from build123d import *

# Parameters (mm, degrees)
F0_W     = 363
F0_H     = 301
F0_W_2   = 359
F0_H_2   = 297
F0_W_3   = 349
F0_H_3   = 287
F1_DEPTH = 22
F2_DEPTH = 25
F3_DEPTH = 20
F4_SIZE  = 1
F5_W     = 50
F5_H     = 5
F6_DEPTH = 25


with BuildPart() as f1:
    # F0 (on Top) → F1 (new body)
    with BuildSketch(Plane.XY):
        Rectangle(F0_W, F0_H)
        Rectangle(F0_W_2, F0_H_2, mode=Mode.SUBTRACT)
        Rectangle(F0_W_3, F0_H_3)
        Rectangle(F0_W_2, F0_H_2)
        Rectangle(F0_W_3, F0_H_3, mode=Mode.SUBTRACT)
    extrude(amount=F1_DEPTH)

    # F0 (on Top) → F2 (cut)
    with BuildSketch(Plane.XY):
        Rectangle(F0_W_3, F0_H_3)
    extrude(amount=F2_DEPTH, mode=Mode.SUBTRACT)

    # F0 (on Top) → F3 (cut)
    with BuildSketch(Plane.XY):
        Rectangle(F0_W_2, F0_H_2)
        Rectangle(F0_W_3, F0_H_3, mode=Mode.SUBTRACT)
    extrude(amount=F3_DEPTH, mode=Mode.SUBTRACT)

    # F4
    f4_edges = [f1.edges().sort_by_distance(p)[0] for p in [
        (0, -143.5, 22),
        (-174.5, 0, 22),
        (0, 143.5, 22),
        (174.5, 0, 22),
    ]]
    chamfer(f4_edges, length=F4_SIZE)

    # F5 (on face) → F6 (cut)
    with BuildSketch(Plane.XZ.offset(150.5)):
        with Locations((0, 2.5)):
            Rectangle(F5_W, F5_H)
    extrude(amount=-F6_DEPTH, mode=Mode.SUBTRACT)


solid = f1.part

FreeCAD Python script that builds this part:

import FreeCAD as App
import Part
import Sketcher


def edges_at(feature, points):
    """Names of the edges that pass closest to the given points."""
    edges = feature.Shape.Edges
    near = lambda p: min(range(len(edges)), key=lambda i: edges[i].distToShape(Part.Vertex(*p))[0])
    return sorted({f"Edge{near(p) + 1}" for p in points})

doc = App.newDocument("Part")
body = doc.addObject("PartDesign::Body", "Body")

# Sketch on XY plane
sketch1 = body.newObject("Sketcher::SketchObject", "Sketch")
sketch1.AttachmentSupport = (doc.getObject("XY_Plane"), [""])
sketch1.MapMode = "FlatFace"
sketch1.addGeometry(Part.LineSegment(App.Vector(-181.5, 150.5, 0), App.Vector(-181.5, -150.5, 0)), False)
sketch1.addGeometry(Part.LineSegment(App.Vector(-181.5, -150.5, 0), App.Vector(181.5, -150.5, 0)), False)
sketch1.addGeometry(Part.LineSegment(App.Vector(181.5, -150.5, 0), App.Vector(181.5, 150.5, 0)), False)
sketch1.addGeometry(Part.LineSegment(App.Vector(181.5, 150.5, 0), App.Vector(-181.5, 150.5, 0)), False)
sketch1.addGeometry(Part.LineSegment(App.Vector(174.5, -143.5, 0), App.Vector(-174.5, -143.5, 0)), False)
sketch1.addGeometry(Part.LineSegment(App.Vector(-174.5, -143.5, 0), App.Vector(-174.5, 143.5, 0)), False)
sketch1.addGeometry(Part.LineSegment(App.Vector(-174.5, 143.5, 0), App.Vector(174.5, 143.5, 0)), False)
sketch1.addGeometry(Part.LineSegment(App.Vector(174.5, 143.5, 0), App.Vector(174.5, -143.5, 0)), False)
sketch1.addConstraint(Sketcher.Constraint("Coincident", 0, 2, 1, 1))
sketch1.addConstraint(Sketcher.Constraint("Coincident", 1, 2, 2, 1))
sketch1.addConstraint(Sketcher.Constraint("Coincident", 2, 2, 3, 1))
sketch1.addConstraint(Sketcher.Constraint("Coincident", 3, 2, 0, 1))
sketch1.addConstraint(Sketcher.Constraint("Coincident", 4, 2, 5, 1))
sketch1.addConstraint(Sketcher.Constraint("Coincident", 5, 2, 6, 1))
sketch1.addConstraint(Sketcher.Constraint("Coincident", 6, 2, 7, 1))
sketch1.addConstraint(Sketcher.Constraint("Coincident", 7, 2, 4, 1))
sketch1.addConstraint(Sketcher.Constraint("Vertical", 0))
sketch1.addConstraint(Sketcher.Constraint("Horizontal", 1))
sketch1.addConstraint(Sketcher.Constraint("Vertical", 2))
sketch1.addConstraint(Sketcher.Constraint("Horizontal", 3))
sketch1.addConstraint(Sketcher.Constraint("Horizontal", 4))
sketch1.addConstraint(Sketcher.Constraint("Vertical", 5))
sketch1.addConstraint(Sketcher.Constraint("Horizontal", 6))
sketch1.addConstraint(Sketcher.Constraint("Vertical", 7))
sketch1.addConstraint(Sketcher.Constraint("Symmetric", 0, 2, 2, 2, -1, 1))
sketch1.addConstraint(Sketcher.Constraint("Symmetric", 4, 2, 6, 2, -1, 1))
sketch1.addConstraint(Sketcher.Constraint("DistanceX", 1, 1, 1, 2, 363.0))
sketch1.addConstraint(Sketcher.Constraint("DistanceX", 4, 2, 4, 1, 349.0))
sketch1.addConstraint(Sketcher.Constraint("DistanceY", 0, 2, 0, 1, 301.0))
sketch1.addConstraint(Sketcher.Constraint("DistanceY", 5, 1, 5, 2, 287.0))
pad1 = body.newObject("PartDesign::Pad", "Pad")
pad1.Profile = sketch1
pad1.Length = 22

# Sketch on XY plane
sketch2 = body.newObject("Sketcher::SketchObject", "Sketch001")
sketch2.AttachmentSupport = (doc.getObject("XY_Plane"), [""])
sketch2.MapMode = "FlatFace"
sketch2.addGeometry(Part.LineSegment(App.Vector(-174.5, 143.5, 0), App.Vector(-174.5, -143.5, 0)), False)
sketch2.addGeometry(Part.LineSegment(App.Vector(-174.5, -143.5, 0), App.Vector(174.5, -143.5, 0)), False)
sketch2.addGeometry(Part.LineSegment(App.Vector(174.5, -143.5, 0), App.Vector(174.5, 143.5, 0)), False)
sketch2.addGeometry(Part.LineSegment(App.Vector(174.5, 143.5, 0), App.Vector(-174.5, 143.5, 0)), False)
sketch2.addConstraint(Sketcher.Constraint("Coincident", 0, 2, 1, 1))
sketch2.addConstraint(Sketcher.Constraint("Coincident", 1, 2, 2, 1))
sketch2.addConstraint(Sketcher.Constraint("Coincident", 2, 2, 3, 1))
sketch2.addConstraint(Sketcher.Constraint("Coincident", 3, 2, 0, 1))
sketch2.addConstraint(Sketcher.Constraint("Vertical", 0))
sketch2.addConstraint(Sketcher.Constraint("Horizontal", 1))
sketch2.addConstraint(Sketcher.Constraint("Vertical", 2))
sketch2.addConstraint(Sketcher.Constraint("Horizontal", 3))
sketch2.addConstraint(Sketcher.Constraint("Symmetric", 0, 2, 2, 2, -1, 1))
sketch2.addConstraint(Sketcher.Constraint("DistanceX", 1, 1, 1, 2, 349.0))
sketch2.addConstraint(Sketcher.Constraint("DistanceY", 0, 2, 0, 1, 287.0))
pocket1 = body.newObject("PartDesign::Pocket", "Pocket")
pocket1.Profile = sketch2
pocket1.Length = 25
pocket1.Reversed = True

# Sketch on XY plane
sketch3 = body.newObject("Sketcher::SketchObject", "Sketch002")
sketch3.AttachmentSupport = (doc.getObject("XY_Plane"), [""])
sketch3.MapMode = "FlatFace"
sketch3.addGeometry(Part.LineSegment(App.Vector(-179.5, 148.5, 0), App.Vector(-179.5, -148.5, 0)), False)
sketch3.addGeometry(Part.LineSegment(App.Vector(-179.5, -148.5, 0), App.Vector(179.5, -148.5, 0)), False)
sketch3.addGeometry(Part.LineSegment(App.Vector(179.5, -148.5, 0), App.Vector(179.5, 148.5, 0)), False)
sketch3.addGeometry(Part.LineSegment(App.Vector(179.5, 148.5, 0), App.Vector(-179.5, 148.5, 0)), False)
sketch3.addGeometry(Part.LineSegment(App.Vector(174.5, -143.5, 0), App.Vector(-174.5, -143.5, 0)), False)
sketch3.addGeometry(Part.LineSegment(App.Vector(-174.5, -143.5, 0), App.Vector(-174.5, 143.5, 0)), False)
sketch3.addGeometry(Part.LineSegment(App.Vector(-174.5, 143.5, 0), App.Vector(174.5, 143.5, 0)), False)
sketch3.addGeometry(Part.LineSegment(App.Vector(174.5, 143.5, 0), App.Vector(174.5, -143.5, 0)), False)
sketch3.addConstraint(Sketcher.Constraint("Coincident", 0, 2, 1, 1))
sketch3.addConstraint(Sketcher.Constraint("Coincident", 1, 2, 2, 1))
sketch3.addConstraint(Sketcher.Constraint("Coincident", 2, 2, 3, 1))
sketch3.addConstraint(Sketcher.Constraint("Coincident", 3, 2, 0, 1))
sketch3.addConstraint(Sketcher.Constraint("Coincident", 4, 2, 5, 1))
sketch3.addConstraint(Sketcher.Constraint("Coincident", 5, 2, 6, 1))
sketch3.addConstraint(Sketcher.Constraint("Coincident", 6, 2, 7, 1))
sketch3.addConstraint(Sketcher.Constraint("Coincident", 7, 2, 4, 1))
sketch3.addConstraint(Sketcher.Constraint("Vertical", 0))
sketch3.addConstraint(Sketcher.Constraint("Horizontal", 1))
sketch3.addConstraint(Sketcher.Constraint("Vertical", 2))
sketch3.addConstraint(Sketcher.Constraint("Horizontal", 3))
sketch3.addConstraint(Sketcher.Constraint("Horizontal", 4))
sketch3.addConstraint(Sketcher.Constraint("Vertical", 5))
sketch3.addConstraint(Sketcher.Constraint("Horizontal", 6))
sketch3.addConstraint(Sketcher.Constraint("Vertical", 7))
sketch3.addConstraint(Sketcher.Constraint("Symmetric", 0, 2, 2, 2, -1, 1))
sketch3.addConstraint(Sketcher.Constraint("Symmetric", 4, 2, 6, 2, -1, 1))
sketch3.addConstraint(Sketcher.Constraint("DistanceX", 1, 1, 1, 2, 359.0))
sketch3.addConstraint(Sketcher.Constraint("DistanceX", 4, 2, 4, 1, 349.0))
sketch3.addConstraint(Sketcher.Constraint("DistanceY", 0, 2, 0, 1, 297.0))
sketch3.addConstraint(Sketcher.Constraint("DistanceY", 5, 1, 5, 2, 287.0))
pocket2 = body.newObject("PartDesign::Pocket", "Pocket001")
pocket2.Profile = sketch3
pocket2.Length = 20
pocket2.Reversed = True
doc.recompute()

chamfer = body.newObject("PartDesign::Chamfer", "Chamfer")
chamfer.Base = (pocket2, edges_at(pocket2, [
    (0, -143.5, 22),
    (-174.5, 0, 22),
    (0, 143.5, 22),
    (174.5, 0, 22),
]))
chamfer.Size = 1

# Sketch on XZ plane
sketch4 = body.newObject("Sketcher::SketchObject", "Sketch003")
sketch4.AttachmentSupport = (doc.getObject("XZ_Plane"), [""])
sketch4.MapMode = "FlatFace"
sketch4.AttachmentOffset = App.Placement(App.Vector(0, 0, 150.5), App.Rotation())
sketch4.addGeometry(Part.LineSegment(App.Vector(-25, 5, 0), App.Vector(-25, 0, 0)), False)
sketch4.addGeometry(Part.LineSegment(App.Vector(-25, 0, 0), App.Vector(25, 0, 0)), False)
sketch4.addGeometry(Part.LineSegment(App.Vector(25, 0, 0), App.Vector(25, 5, 0)), False)
sketch4.addGeometry(Part.LineSegment(App.Vector(25, 5, 0), App.Vector(-25, 5, 0)), False)
sketch4.addConstraint(Sketcher.Constraint("Coincident", 0, 2, 1, 1))
sketch4.addConstraint(Sketcher.Constraint("Coincident", 1, 2, 2, 1))
sketch4.addConstraint(Sketcher.Constraint("Coincident", 2, 2, 3, 1))
sketch4.addConstraint(Sketcher.Constraint("Coincident", 3, 2, 0, 1))
sketch4.addConstraint(Sketcher.Constraint("Vertical", 0))
sketch4.addConstraint(Sketcher.Constraint("Horizontal", 1))
sketch4.addConstraint(Sketcher.Constraint("Vertical", 2))
sketch4.addConstraint(Sketcher.Constraint("Horizontal", 3))
sketch4.addConstraint(Sketcher.Constraint("Symmetric", 0, 2, 1, 2, -1, 1))
sketch4.addConstraint(Sketcher.Constraint("DistanceX", 1, 1, 1, 2, 50.0))
sketch4.addConstraint(Sketcher.Constraint("DistanceY", 0, 2, 0, 1, 5.0))
pocket3 = body.newObject("PartDesign::Pocket", "Pocket002")
pocket3.Profile = sketch4
pocket3.Length = 25

doc.recompute()
